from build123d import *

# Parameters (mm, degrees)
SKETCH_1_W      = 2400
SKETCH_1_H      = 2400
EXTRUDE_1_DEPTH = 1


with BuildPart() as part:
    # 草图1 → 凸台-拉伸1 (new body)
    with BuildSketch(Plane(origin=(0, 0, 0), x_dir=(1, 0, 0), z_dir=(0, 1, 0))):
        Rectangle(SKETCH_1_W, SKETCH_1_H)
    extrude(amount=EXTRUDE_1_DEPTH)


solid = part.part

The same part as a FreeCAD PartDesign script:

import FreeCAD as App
import Part
import Sketcher


def add_polygon(sketch, points):
    """Adds a closed chain of lines whose ends are joined by coincident constraints."""
    first, n = sketch.GeometryCount, len(points)
    for a, b in zip(points, points[1:] + points[:1]):
        sketch.addGeometry(Part.LineSegment(App.Vector(*a, 0), App.Vector(*b, 0)), False)
    for i in range(n):
        sketch.addConstraint(Sketcher.Constraint("Coincident", first + i, 2, first + (i + 1) % n, 1))

doc = App.newDocument("Part")
params = doc.addObject("Spreadsheet::Sheet", "Params")
for row, (alias, value) in enumerate([
    ("sketch1_width", "2400 mm"),
    ("pad1_length", "1 mm"),
], start=1):
    params.set(f"A{row}", alias)
    params.set(f"B{row}", "=" + value)
    params.setAlias(f"B{row}", alias)

body = doc.addObject("PartDesign::Body", "Body")

# Sketch on XZ plane
sketch1 = body.newObject("Sketcher::SketchObject", "Sketch")
sketch1.AttachmentSupport = (doc.getObject("XZ_Plane"), [""])
sketch1.MapMode = "FlatFace"
add_polygon(sketch1, [(-1200, -1200), (-1200, 1200), (1200, 1200), (1200, -1200)])  # lines 0-3
sketch1.addConstraint([
    Sketcher.Constraint("Vertical", 0),
    Sketcher.Constraint("Horizontal", 1),
    Sketcher.Constraint("Vertical", 2),
    Sketcher.Constraint("Horizontal", 3),
    Sketcher.Constraint("Symmetric", 0, 2, 2, 2, -1, 1),
    Sketcher.Constraint("Equal", 3, 0),
    Sketcher.Constraint("DistanceX", 1, 1, 1, 2, 2400.0),
])
sketch1.setExpression("Constraints[10]", "Params.sketch1_width")
pad1 = body.newObject("PartDesign::Pad", "Pad")
pad1.Profile = sketch1
pad1.setExpression("Length", "Params.pad1_length")
pad1.Reversed = True

doc.recompute()
